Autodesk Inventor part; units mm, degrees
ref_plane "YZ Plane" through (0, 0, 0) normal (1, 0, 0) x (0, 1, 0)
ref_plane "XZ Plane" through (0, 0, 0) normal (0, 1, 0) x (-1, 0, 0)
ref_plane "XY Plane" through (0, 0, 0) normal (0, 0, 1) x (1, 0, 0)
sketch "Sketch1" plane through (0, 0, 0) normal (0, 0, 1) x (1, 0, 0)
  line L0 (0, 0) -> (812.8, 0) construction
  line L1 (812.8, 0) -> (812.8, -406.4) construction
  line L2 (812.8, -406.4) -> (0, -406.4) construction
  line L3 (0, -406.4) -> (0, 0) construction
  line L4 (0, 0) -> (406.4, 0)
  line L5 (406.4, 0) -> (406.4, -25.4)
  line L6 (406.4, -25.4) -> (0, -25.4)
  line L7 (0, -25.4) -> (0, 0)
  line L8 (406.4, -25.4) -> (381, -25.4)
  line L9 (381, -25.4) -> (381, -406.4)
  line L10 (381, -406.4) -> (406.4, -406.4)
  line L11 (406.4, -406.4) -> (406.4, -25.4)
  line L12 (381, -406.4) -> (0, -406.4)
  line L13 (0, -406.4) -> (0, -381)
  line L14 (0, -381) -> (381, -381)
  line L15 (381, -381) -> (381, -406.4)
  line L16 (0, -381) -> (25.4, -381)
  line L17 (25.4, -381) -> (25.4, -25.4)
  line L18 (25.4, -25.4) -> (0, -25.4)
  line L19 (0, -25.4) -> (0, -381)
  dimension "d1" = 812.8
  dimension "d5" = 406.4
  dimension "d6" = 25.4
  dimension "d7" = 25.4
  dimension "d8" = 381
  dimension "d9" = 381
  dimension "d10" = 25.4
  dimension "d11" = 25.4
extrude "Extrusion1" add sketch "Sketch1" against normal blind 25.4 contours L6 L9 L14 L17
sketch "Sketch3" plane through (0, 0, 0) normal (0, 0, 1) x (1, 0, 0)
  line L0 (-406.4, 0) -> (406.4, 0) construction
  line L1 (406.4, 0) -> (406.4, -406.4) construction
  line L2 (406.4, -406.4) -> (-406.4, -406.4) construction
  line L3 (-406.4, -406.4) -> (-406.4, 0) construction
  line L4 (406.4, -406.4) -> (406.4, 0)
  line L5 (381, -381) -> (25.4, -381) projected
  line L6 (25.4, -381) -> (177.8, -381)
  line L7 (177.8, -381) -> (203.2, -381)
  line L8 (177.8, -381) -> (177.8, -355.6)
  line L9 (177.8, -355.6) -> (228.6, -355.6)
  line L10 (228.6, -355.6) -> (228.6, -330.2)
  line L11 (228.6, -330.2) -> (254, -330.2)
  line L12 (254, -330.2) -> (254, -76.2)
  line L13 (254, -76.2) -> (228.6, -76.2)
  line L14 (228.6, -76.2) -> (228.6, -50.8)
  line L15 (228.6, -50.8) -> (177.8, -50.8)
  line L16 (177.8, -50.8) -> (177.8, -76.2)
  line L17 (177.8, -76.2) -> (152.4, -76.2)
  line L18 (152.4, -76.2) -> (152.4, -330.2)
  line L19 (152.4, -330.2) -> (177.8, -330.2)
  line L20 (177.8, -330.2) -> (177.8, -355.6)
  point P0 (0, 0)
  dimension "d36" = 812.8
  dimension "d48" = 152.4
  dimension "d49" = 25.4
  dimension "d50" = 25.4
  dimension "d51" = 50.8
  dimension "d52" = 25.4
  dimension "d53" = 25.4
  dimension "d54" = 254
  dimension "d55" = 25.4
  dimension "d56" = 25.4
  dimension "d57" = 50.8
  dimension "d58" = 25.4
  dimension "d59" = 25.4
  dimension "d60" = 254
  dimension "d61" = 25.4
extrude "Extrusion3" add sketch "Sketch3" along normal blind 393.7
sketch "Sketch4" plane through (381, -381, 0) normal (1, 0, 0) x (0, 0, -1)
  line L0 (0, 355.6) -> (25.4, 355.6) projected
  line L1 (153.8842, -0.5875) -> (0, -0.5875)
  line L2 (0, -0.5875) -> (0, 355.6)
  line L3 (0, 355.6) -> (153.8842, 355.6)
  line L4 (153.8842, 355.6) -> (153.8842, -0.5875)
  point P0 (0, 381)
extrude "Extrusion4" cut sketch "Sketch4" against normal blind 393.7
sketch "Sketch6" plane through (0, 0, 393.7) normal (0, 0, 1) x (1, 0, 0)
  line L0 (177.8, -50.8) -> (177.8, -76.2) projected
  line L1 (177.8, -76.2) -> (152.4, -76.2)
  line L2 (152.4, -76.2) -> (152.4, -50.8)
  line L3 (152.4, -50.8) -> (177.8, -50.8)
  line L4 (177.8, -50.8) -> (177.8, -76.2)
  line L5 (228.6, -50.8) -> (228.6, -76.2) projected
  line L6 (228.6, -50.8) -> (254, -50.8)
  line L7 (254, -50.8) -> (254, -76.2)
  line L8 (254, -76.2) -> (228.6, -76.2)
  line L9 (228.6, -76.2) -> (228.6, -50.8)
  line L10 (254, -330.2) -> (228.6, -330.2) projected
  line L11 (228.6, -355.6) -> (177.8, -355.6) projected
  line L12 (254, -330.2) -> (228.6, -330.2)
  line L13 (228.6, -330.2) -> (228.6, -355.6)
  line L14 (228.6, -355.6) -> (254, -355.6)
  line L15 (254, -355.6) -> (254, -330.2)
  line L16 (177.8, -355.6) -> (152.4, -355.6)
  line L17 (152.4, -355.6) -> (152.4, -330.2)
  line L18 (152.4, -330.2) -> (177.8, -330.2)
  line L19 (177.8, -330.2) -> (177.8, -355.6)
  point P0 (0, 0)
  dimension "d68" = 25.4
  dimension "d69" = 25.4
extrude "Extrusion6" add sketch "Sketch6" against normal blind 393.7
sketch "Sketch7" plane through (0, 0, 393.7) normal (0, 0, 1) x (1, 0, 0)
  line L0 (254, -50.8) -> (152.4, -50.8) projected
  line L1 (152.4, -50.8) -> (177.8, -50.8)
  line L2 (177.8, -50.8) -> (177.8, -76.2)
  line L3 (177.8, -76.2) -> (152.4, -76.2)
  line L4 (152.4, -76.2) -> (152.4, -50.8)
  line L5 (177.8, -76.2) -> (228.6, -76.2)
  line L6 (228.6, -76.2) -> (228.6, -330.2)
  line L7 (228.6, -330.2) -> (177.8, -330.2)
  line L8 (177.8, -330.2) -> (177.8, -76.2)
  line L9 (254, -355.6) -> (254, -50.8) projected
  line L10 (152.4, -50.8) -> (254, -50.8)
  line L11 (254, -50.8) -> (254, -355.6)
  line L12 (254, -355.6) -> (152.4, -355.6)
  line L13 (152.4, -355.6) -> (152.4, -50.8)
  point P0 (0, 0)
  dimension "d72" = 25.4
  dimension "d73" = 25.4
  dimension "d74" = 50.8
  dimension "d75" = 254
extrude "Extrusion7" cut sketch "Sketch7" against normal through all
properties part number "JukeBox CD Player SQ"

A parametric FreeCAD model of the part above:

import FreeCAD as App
import Part
import Sketcher
from FreeCAD import Vector
Q = App.Units.Quantity

doc = App.newDocument("Part")
params = doc.addObject("Spreadsheet::Sheet", "Params")
for row, (alias, value) in enumerate([
    ("pad1_length", "1 in"),
    ("sketch2_width", "2 in"),
    ("sketch2_width2", "1 in"),
    ("sketch2_height", "10 in"),
    ("pad2_length", "15.5 in"),
    ("pocket1_length", "15.5 in"),
    ("sketch4_width", "1 in"),
    ("pad3_length", "15.5 in"),
    ("sketch5_width", "2 in"),
    ("sketch5_height", "10 in"),
], start=1):
    params.set(f"A{row}", alias)
    params.set(f"B{row}", "=" + value)
    params.setAlias(f"B{row}", alias)

body = doc.addObject("PartDesign::Body", "Body")

# Sketch on XY plane
sketch1 = body.newObject("Sketcher::SketchObject", "Sketch")
sketch1.AttachmentSupport = (doc.getObject("XY_Plane"), [""])
sketch1.MapMode = "FlatFace"
sketch1.addGeometry([
    Part.LineSegment(Vector(381, -25, 0), Vector(25, -25, 0)),
    Part.LineSegment(Vector(25, -25, 0), Vector(25, -381, 0)),
    Part.LineSegment(Vector(25, -381, 0), Vector(381, -381, 0)),
    Part.LineSegment(Vector(381, -381, 0), Vector(381, -25, 0)),
], False)
sketch1.addConstraint([
    Sketcher.Constraint("Coincident", 0, 2, 1, 1),
    Sketcher.Constraint("Coincident", 1, 2, 2, 1),
    Sketcher.Constraint("Coincident", 2, 2, 3, 1),
    Sketcher.Constraint("Coincident", 3, 2, 0, 1),
    Sketcher.Constraint("Horizontal", 0),
    Sketcher.Constraint("Vertical", 1),
    Sketcher.Constraint("Horizontal", 2),
    Sketcher.Constraint("Vertical", 3),
    Sketcher.Constraint("Equal", 2, 1),
    Sketcher.Constraint("DistanceX", -1, 1, 0, 2, Q("1 in")),
    Sketcher.Constraint("DistanceY", 0, 2, -1, 1, Q("1 in")),
    Sketcher.Constraint("DistanceY", 1, 2, -1, 1, Q("15 in")),
])
pad1 = body.newObject("PartDesign::Pad", "Pad")
pad1.Profile = sketch1
pad1.setExpression("Length", "Params.pad1_length")
pad1.Reversed = True

# Sketch on XY plane
sketch2 = body.newObject("Sketcher::SketchObject", "Sketch001")
sketch2.AttachmentSupport = (doc.getObject("XY_Plane"), [""])
sketch2.MapMode = "FlatFace"
sketch2.addGeometry([
    Part.LineSegment(Vector(178, -330, 0), Vector(178, -356, 0)),  # 0
    Part.LineSegment(Vector(178, -356, 0), Vector(229, -356, 0)),  # 1
    Part.LineSegment(Vector(229, -356, 0), Vector(229, -330, 0)),  # 2
    Part.LineSegment(Vector(229, -330, 0), Vector(254, -330, 0)),  # 3
    Part.LineSegment(Vector(254, -330, 0), Vector(254, -76, 0)),  # 4
    Part.LineSegment(Vector(254, -76, 0), Vector(229, -76, 0)),  # 5
    Part.LineSegment(Vector(229, -76, 0), Vector(229, -51, 0)),  # 6
    Part.LineSegment(Vector(229, -51, 0), Vector(178, -51, 0)),  # 7
    Part.LineSegment(Vector(178, -51, 0), Vector(178, -76, 0)),  # 8
    Part.LineSegment(Vector(178, -76, 0), Vector(152, -76, 0)),  # 9
    Part.LineSegment(Vector(152, -76, 0), Vector(152, -330, 0)),  # 10
    Part.LineSegment(Vector(152, -330, 0), Vector(178, -330, 0)),  # 11
], False)
sketch2.addConstraint([
    Sketcher.Constraint("Coincident", 0, 2, 1, 1),
    Sketcher.Constraint("Coincident", 1, 2, 2, 1),
    Sketcher.Constraint("Coincident", 2, 2, 3, 1),
    Sketcher.Constraint("Coincident", 3, 2, 4, 1),
    Sketcher.Constraint("Coincident", 4, 2, 5, 1),
    Sketcher.Constraint("Coincident", 5, 2, 6, 1),
    Sketcher.Constraint("Coincident", 6, 2, 7, 1),
    Sketcher.Constraint("Coincident", 7, 2, 8, 1),
    Sketcher.Constraint("Coincident", 8, 2, 9, 1),
    Sketcher.Constraint("Coincident", 9, 2, 10, 1),
    Sketcher.Constraint("Coincident", 10, 2, 11, 1),
    Sketcher.Constraint("Coincident", 11, 2, 0, 1),
    Sketcher.Constraint("Vertical", 0),
    Sketcher.Constraint("Horizontal", 1),
    Sketcher.Constraint("Vertical", 2),
    Sketcher.Constraint("Horizontal", 3),
    Sketcher.Constraint("Vertical", 4),
    Sketcher.Constraint("Horizontal", 5),
    Sketcher.Constraint("Vertical", 6),
    Sketcher.Constraint("Horizontal", 7),
    Sketcher.Constraint("Vertical", 8),
    Sketcher.Constraint("Horizontal", 9),
    Sketcher.Constraint("Vertical", 10),
    Sketcher.Constraint("Horizontal", 11),
    Sketcher.Constraint("Horizontal", 5, 2, 8, 2),
    Sketcher.Constraint("Horizontal", 3, 2, 10, 2),
    Sketcher.Constraint("Vertical", 2, 2, 5, 2),
    Sketcher.Constraint("Vertical", 0, 2, 7, 2),
    Sketcher.Constraint("Equal", 5, 9),
    Sketcher.Constraint("Equal", 11, 0),
    Sketcher.Constraint("Equal", 2, 6),
    Sketcher.Constraint("DistanceX", 1, 1, 1, 2, Q("2 in")),
    Sketcher.Constraint("DistanceX", 3, 1, 3, 2, Q("1 in")),
    Sketcher.Constraint("DistanceY", 4, 1, 4, 2, Q("10 in")),
    Sketcher.Constraint("DistanceX", -1, 1, 3, 2, Q("10 in")),
    Sketcher.Constraint("DistanceY", 6, 2, -1, 1, Q("2 in")),
])
sketch2.setExpression("Constraints[31]", "Params.sketch2_width")
sketch2.setExpression("Constraints[32]", "Params.sketch2_width2")
sketch2.setExpression("Constraints[33]", "Params.sketch2_height")
pad2 = body.newObject("PartDesign::Pad", "Pad001")
pad2.Profile = sketch2
pad2.setExpression("Length", "Params.pad2_length")

# Sketch on YZ plane
sketch3 = body.newObject("Sketcher::SketchObject", "Sketch002")
sketch3.AttachmentSupport = (doc.getObject("YZ_Plane"), [""])
sketch3.MapMode = "FlatFace"
sketch3.AttachmentOffset = App.Placement(Vector(0, 0, 15 * 25.4), App.Rotation())
sketch3.addGeometry([
    Part.LineSegment(Vector(-25, -154, 0), Vector(-25, 0, 0)),
    Part.LineSegment(Vector(-25, 0, 0), Vector(-382, 0, 0)),
    Part.LineSegment(Vector(-382, 0, 0), Vector(-382, -154, 0)),
    Part.LineSegment(Vector(-382, -154, 0), Vector(-25, -154, 0)),
], False)
sketch3.addConstraint([
    Sketcher.Constraint("Coincident", 0, 2, 1, 1),
    Sketcher.Constraint("Coincident", 1, 2, 2, 1),
    Sketcher.Constraint("Coincident", 2, 2, 3, 1),
    Sketcher.Constraint("Coincident", 3, 2, 0, 1),
    Sketcher.Constraint("Vertical", 0),
    Sketcher.Constraint("Horizontal", 1),
    Sketcher.Constraint("Vertical", 2),
    Sketcher.Constraint("Horizontal", 3),
    Sketcher.Constraint("PointOnObject", 0, 2, -1),
    Sketcher.Constraint("DistanceX", 0, 2, -1, 1, Q("1 in")),
    Sketcher.Constraint("DistanceX", 1, 2, 1, 1, Q("356.1875 mm")),
    Sketcher.Constraint("DistanceY", 0, 1, 0, 2, Q("153.8842 mm")),
])
pocket1 = body.newObject("PartDesign::Pocket", "Pocket")
pocket1.Profile = sketch3
pocket1.setExpression("Length", "Params.pocket1_length")

# Sketch on XY plane
sketch4 = body.newObject("Sketcher::SketchObject", "Sketch003")
sketch4.AttachmentSupport = (doc.getObject("XY_Plane"), [""])
sketch4.MapMode = "FlatFace"
sketch4.AttachmentOffset = App.Placement(Vector(0, 0, 15.5 * 25.4), App.Rotation())
sketch4.addGeometry([
    Part.LineSegment(Vector(178, -76, 0), Vector(178, -51, 0)),  # 0
    Part.LineSegment(Vector(178, -51, 0), Vector(152, -51, 0)),  # 1
    Part.LineSegment(Vector(152, -51, 0), Vector(152, -76, 0)),  # 2
    Part.LineSegment(Vector(152, -76, 0), Vector(178, -76, 0)),  # 3
    Part.LineSegment(Vector(254, -51, 0), Vector(229, -51, 0)),  # 4
    Part.LineSegment(Vector(229, -51, 0), Vector(229, -76, 0)),  # 5
    Part.LineSegment(Vector(229, -76, 0), Vector(254, -76, 0)),  # 6
    Part.LineSegment(Vector(254, -76, 0), Vector(254, -51, 0)),  # 7
    Part.LineSegment(Vector(254, -356, 0), Vector(254, -330, 0)),  # 8
    Part.LineSegment(Vector(254, -330, 0), Vector(229, -330, 0)),  # 9
    Part.LineSegment(Vector(229, -330, 0), Vector(229, -356, 0)),  # 10
    Part.LineSegment(Vector(229, -356, 0), Vector(254, -356, 0)),  # 11
    Part.LineSegment(Vector(152, -356, 0), Vector(178, -356, 0)),  # 12
    Part.LineSegment(Vector(178, -356, 0), Vector(178, -330, 0)),  # 13
    Part.LineSegment(Vector(178, -330, 0), Vector(152, -330, 0)),  # 14
    Part.LineSegment(Vector(152, -330, 0), Vector(152, -356, 0)),  # 15
], False)
sketch4.addConstraint([
    Sketcher.Constraint("Coincident", 0, 2, 1, 1),
    Sketcher.Constraint("Coincident", 1, 2, 2, 1),
    Sketcher.Constraint("Coincident", 2, 2, 3, 1),
    Sketcher.Constraint("Coincident", 3, 2, 0, 1),
    Sketcher.Constraint("Coincident", 4, 2, 5, 1),
    Sketcher.Constraint("Coincident", 5, 2, 6, 1),
    Sketcher.Constraint("Coincident", 6, 2, 7, 1),
    Sketcher.Constraint("Coincident", 7, 2, 4, 1),
    Sketcher.Constraint("Coincident", 8, 2, 9, 1),
    Sketcher.Constraint("Coincident", 9, 2, 10, 1),
    Sketcher.Constraint("Coincident", 10, 2, 11, 1),
    Sketcher.Constraint("Coincident", 11, 2, 8, 1),
    Sketcher.Constraint("Coincident", 12, 2, 13, 1),
    Sketcher.Constraint("Coincident", 13, 2, 14, 1),
    Sketcher.Constraint("Coincident", 14, 2, 15, 1),
    Sketcher.Constraint("Coincident", 15, 2, 12, 1),
    Sketcher.Constraint("Vertical", 0),
    Sketcher.Constraint("Horizontal", 1),
    Sketcher.Constraint("Vertical", 2),
    Sketcher.Constraint("Horizontal", 3),
    Sketcher.Constraint("Horizontal", 4),
    Sketcher.Constraint("Vertical", 5),
    Sketcher.Constraint("Horizontal", 6),
    Sketcher.Constraint("Vertical", 7),
    Sketcher.Constraint("Vertical", 8),
    Sketcher.Constraint("Horizontal", 9),
    Sketcher.Constraint("Vertical", 10),
    Sketcher.Constraint("Horizontal", 11),
    Sketcher.Constraint("Horizontal", 12),
    Sketcher.Constraint("Vertical", 13),
    Sketcher.Constraint("Horizontal", 14),
    Sketcher.Constraint("Vertical", 15),
    Sketcher.Constraint("Horizontal", 1, 2, 4, 2),
    Sketcher.Constraint("Horizontal", 3, 2, 5, 2),
    Sketcher.Constraint("Horizontal", 11, 2, 12, 2),
    Sketcher.Constraint("Horizontal", 9, 2, 13, 2),
    Sketcher.Constraint("Vertical", 7, 2, 8, 2),
    Sketcher.Constraint("Vertical", 5, 2, 9, 2),
    Sketcher.Constraint("Vertical", 3, 2, 12, 2),
    Sketcher.Constraint("Vertical", 2, 2, 14, 2),
    Sketcher.Constraint("Equal", 3, 4),
    Sketcher.Constraint("Equal", 14, 0),
    Sketcher.Constraint("Equal", 7, 8),
    Sketcher.Constraint("DistanceX", 1, 2, 1, 1, Q("1 in")),
    Sketcher.Constraint("DistanceX", -1, 1, 0, 2, Q("7 in")),
    Sketcher.Constraint("DistanceY", 0, 2, -1, 1, Q("2 in")),
    Sketcher.Constraint("DistanceX", -1, 1, 4, 2, Q("9 in")),
    Sketcher.Constraint("DistanceY", 8, 2, -1, 1, Q("13 in")),
])
sketch4.setExpression("Constraints[43]", "Params.sketch4_width")
pad3 = body.newObject("PartDesign::Pad", "Pad002")
pad3.Profile = sketch4
pad3.setExpression("Length", "Params.pad3_length")
pad3.Reversed = True

# Sketch on XY plane
sketch5 = body.newObject("Sketcher::SketchObject", "Sketch004")
sketch5.AttachmentSupport = (doc.getObject("XY_Plane"), [""])
sketch5.MapMode = "FlatFace"
sketch5.AttachmentOffset = App.Placement(Vector(0, 0, 15.5 * 25.4), App.Rotation())
sketch5.addGeometry([
    Part.LineSegment(Vector(254, -356, 0), Vector(254, -51, 0)),  # 0
    Part.LineSegment(Vector(254, -51, 0), Vector(152, -51, 0)),  # 1
    Part.LineSegment(Vector(152, -51, 0), Vector(152, -356, 0)),  # 2
    Part.LineSegment(Vector(152, -356, 0), Vector(254, -356, 0)),  # 3
    Part.LineSegment(Vector(178, -330, 0), Vector(178, -76, 0)),  # 4
    Part.LineSegment(Vector(178, -76, 0), Vector(229, -76, 0)),  # 5
    Part.LineSegment(Vector(229, -76, 0), Vector(229, -330, 0)),  # 6
    Part.LineSegment(Vector(229, -330, 0), Vector(178, -330, 0)),  # 7
], False)
sketch5.addConstraint([
    Sketcher.Constraint("Coincident", 0, 2, 1, 1),
    Sketcher.Constraint("Coincident", 1, 2, 2, 1),
    Sketcher.Constraint("Coincident", 2, 2, 3, 1),
    Sketcher.Constraint("Coincident", 3, 2, 0, 1),
    Sketcher.Constraint("Coincident", 4, 2, 5, 1),
    Sketcher.Constraint("Coincident", 5, 2, 6, 1),
    Sketcher.Constraint("Coincident", 6, 2, 7, 1),
    Sketcher.Constraint("Coincident", 7, 2, 4, 1),
    Sketcher.Constraint("Vertical", 0),
    Sketcher.Constraint("Horizontal", 1),
    Sketcher.Constraint("Vertical", 2),
    Sketcher.Constraint("Horizontal", 3),
    Sketcher.Constraint("Vertical", 4),
    Sketcher.Constraint("Horizontal", 5),
    Sketcher.Constraint("Vertical", 6),
    Sketcher.Constraint("Horizontal", 7),
    Sketcher.Constraint("DistanceX", 5, 1, 5, 2, Q("2 in")),
    Sketcher.Constraint("DistanceY", 4, 1, 4, 2, Q("10 in")),
    Sketcher.Constraint("DistanceX", -1, 1, 0, 2, Q("10 in")),
    Sketcher.Constraint("DistanceY", 0, 2, -1, 1, Q("2 in")),
    Sketcher.Constraint("DistanceX", 1, 2, 4, 2, Q("1 in")),
    Sketcher.Constraint("DistanceY", 4, 2, 1, 2, Q("1 in")),
    Sketcher.Constraint("DistanceX", 5, 2, 0, 2, Q("1 in")),
    Sketcher.Constraint("DistanceY", 3, 2, 6, 2, Q("1 in")),
])
sketch5.setExpression("Constraints[16]", "Params.sketch5_width")
sketch5.setExpression("Constraints[17]", "Params.sketch5_height")
pocket2 = body.newObject("PartDesign::Pocket", "Pocket001")
pocket2.Profile = sketch5
pocket2.Type = "ThroughAll"

doc.recompute()
